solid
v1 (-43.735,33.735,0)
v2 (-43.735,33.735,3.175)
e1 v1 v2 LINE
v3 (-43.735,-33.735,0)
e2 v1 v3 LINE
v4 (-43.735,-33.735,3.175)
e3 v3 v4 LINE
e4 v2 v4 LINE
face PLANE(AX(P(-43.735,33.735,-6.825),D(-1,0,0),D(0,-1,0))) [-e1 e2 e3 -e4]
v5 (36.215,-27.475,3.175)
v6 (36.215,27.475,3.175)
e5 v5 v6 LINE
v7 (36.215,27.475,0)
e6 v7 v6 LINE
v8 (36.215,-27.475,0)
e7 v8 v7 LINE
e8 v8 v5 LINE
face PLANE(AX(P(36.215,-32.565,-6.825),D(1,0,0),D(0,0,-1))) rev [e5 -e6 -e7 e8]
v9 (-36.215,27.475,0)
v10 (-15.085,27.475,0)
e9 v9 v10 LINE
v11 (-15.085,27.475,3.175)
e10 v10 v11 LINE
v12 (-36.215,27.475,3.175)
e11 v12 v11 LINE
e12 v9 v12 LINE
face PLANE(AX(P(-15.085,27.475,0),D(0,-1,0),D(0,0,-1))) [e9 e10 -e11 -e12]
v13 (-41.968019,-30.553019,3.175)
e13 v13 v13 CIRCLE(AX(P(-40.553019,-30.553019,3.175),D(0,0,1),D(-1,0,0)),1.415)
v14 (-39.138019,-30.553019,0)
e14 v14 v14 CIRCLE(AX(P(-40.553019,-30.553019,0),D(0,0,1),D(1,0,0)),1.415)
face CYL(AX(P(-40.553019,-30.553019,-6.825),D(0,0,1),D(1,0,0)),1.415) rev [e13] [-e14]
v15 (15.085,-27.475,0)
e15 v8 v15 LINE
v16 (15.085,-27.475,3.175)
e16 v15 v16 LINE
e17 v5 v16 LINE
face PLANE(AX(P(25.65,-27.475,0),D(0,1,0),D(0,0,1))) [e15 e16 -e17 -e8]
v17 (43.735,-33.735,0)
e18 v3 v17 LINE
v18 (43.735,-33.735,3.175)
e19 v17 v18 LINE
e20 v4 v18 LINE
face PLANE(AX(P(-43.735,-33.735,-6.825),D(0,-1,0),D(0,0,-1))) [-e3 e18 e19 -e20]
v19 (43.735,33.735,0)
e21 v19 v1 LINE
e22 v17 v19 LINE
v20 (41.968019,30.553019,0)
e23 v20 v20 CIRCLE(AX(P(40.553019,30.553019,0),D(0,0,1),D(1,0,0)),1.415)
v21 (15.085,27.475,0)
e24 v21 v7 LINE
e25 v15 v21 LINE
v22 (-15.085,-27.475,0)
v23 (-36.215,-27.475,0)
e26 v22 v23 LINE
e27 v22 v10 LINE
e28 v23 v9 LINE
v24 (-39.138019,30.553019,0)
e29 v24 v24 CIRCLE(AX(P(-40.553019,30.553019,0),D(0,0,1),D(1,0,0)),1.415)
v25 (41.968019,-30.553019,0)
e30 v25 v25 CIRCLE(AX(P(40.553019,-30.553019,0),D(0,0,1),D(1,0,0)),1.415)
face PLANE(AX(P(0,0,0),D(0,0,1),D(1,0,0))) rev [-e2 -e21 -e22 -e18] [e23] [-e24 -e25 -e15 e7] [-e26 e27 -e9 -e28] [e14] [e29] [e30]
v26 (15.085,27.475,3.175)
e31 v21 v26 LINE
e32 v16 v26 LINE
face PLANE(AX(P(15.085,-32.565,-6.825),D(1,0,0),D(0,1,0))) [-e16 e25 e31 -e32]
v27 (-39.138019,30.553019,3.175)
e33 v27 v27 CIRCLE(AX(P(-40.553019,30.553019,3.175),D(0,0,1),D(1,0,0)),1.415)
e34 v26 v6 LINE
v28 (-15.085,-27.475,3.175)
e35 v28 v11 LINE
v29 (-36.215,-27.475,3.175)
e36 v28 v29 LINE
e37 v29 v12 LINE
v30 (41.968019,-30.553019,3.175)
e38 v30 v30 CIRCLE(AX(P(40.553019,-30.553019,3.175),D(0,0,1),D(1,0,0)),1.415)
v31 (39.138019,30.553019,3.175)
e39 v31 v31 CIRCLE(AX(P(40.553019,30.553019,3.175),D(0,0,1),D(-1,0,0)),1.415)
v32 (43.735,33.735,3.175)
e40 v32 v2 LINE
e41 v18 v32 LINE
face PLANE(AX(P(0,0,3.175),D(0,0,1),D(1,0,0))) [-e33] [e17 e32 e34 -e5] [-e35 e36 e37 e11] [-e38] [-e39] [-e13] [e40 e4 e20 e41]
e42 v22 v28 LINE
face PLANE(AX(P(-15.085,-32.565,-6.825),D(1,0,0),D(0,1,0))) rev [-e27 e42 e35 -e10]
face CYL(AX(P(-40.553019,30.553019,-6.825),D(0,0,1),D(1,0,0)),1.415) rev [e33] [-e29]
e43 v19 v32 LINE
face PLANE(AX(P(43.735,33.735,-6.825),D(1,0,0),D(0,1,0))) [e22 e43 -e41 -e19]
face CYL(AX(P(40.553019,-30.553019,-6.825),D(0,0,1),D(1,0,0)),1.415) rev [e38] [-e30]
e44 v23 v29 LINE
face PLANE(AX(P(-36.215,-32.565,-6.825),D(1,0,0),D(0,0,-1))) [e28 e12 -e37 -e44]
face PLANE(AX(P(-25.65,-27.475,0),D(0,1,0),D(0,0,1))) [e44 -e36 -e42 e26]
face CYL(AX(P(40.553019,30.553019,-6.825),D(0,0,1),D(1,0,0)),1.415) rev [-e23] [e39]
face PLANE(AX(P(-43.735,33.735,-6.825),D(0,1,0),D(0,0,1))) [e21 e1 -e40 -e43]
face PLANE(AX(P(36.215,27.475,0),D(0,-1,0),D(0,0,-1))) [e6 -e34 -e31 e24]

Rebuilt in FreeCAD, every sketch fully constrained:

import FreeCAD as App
import Part
import Sketcher

V = App.Vector
Q = App.Units.Quantity

doc = App.newDocument("Part")
body = doc.addObject("PartDesign::Body", "Body")

# Sketch on XY plane
sketch1 = body.newObject("Sketcher::SketchObject", "Sketch")
sketch1.AttachmentSupport = (doc.getObject("XY_Plane"), [""])
sketch1.MapMode = "FlatFace"
sketch1.addGeometry(Part.LineSegment(V(-50, 40, 0), V(-50, -40, 0)), False)
sketch1.addGeometry(Part.LineSegment(V(-50, -40, 0), V(50, -40, 0)), False)
sketch1.addGeometry(Part.LineSegment(V(50, -40, 0), V(50, 40, 0)), False)
sketch1.addGeometry(Part.LineSegment(V(50, 40, 0), V(-50, 40, 0)), False)
sketch1.addConstraint(Sketcher.Constraint("Coincident", 0, 2, 1, 1))
sketch1.addConstraint(Sketcher.Constraint("Coincident", 1, 2, 2, 1))
sketch1.addConstraint(Sketcher.Constraint("Coincident", 2, 2, 3, 1))
sketch1.addConstraint(Sketcher.Constraint("Coincident", 3, 2, 0, 1))
sketch1.addConstraint(Sketcher.Constraint("Vertical", 0))
sketch1.addConstraint(Sketcher.Constraint("Horizontal", 1))
sketch1.addConstraint(Sketcher.Constraint("Vertical", 2))
sketch1.addConstraint(Sketcher.Constraint("Horizontal", 3))
sketch1.addConstraint(Sketcher.Constraint("Symmetric", 0, 2, 2, 2, -1, 1))
sketch1.addConstraint(Sketcher.Constraint("DistanceX", 1, 1, 1, 2, Q("100 mm")))
sketch1.addConstraint(Sketcher.Constraint("DistanceY", 0, 2, 0, 1, Q("80 mm")))
pad1 = body.newObject("PartDesign::Pad", "Pad")
pad1.Profile = sketch1
pad1.Length = 3.175

# Sketch on XY plane
sketch2 = body.newObject("Sketcher::SketchObject", "Sketch001")
sketch2.AttachmentSupport = (doc.getObject("XY_Plane"), [""])
sketch2.MapMode = "FlatFace"
sketch2.AttachmentOffset = App.Placement(V(0, 0, 3.175), App.Rotation())
sketch2.addGeometry(Part.LineSegment(V(-50, 40, 0), V(-50, -40, 0)), False)
sketch2.addGeometry(Part.LineSegment(V(-50, -40, 0), V(50, -40, 0)), False)
sketch2.addGeometry(Part.LineSegment(V(50, -40, 0), V(50, 40, 0)), False)
sketch2.addGeometry(Part.LineSegment(V(50, 40, 0), V(-50, 40, 0)), False)
sketch2.addGeometry(Part.LineSegment(V(44, -34, 0), V(-44, -34, 0)), False)
sketch2.addGeometry(Part.LineSegment(V(-44, -34, 0), V(-44, 34, 0)), False)
sketch2.addGeometry(Part.LineSegment(V(-44, 34, 0), V(44, 34, 0)), False)
sketch2.addGeometry(Part.LineSegment(V(44, 34, 0), V(44, -34, 0)), False)
sketch2.addConstraint(Sketcher.Constraint("Coincident", 0, 2, 1, 1))
sketch2.addConstraint(Sketcher.Constraint("Coincident", 1, 2, 2, 1))
sketch2.addConstraint(Sketcher.Constraint("Coincident", 2, 2, 3, 1))
sketch2.addConstraint(Sketcher.Constraint("Coincident", 3, 2, 0, 1))
sketch2.addConstraint(Sketcher.Constraint("Coincident", 4, 2, 5, 1))
sketch2.addConstraint(Sketcher.Constraint("Coincident", 5, 2, 6, 1))
sketch2.addConstraint(Sketcher.Constraint("Coincident", 6, 2, 7, 1))
sketch2.addConstraint(Sketcher.Constraint("Coincident", 7, 2, 4, 1))
sketch2.addConstraint(Sketcher.Constraint("Vertical", 0))
sketch2.addConstraint(Sketcher.Constraint("Horizontal", 1))
sketch2.addConstraint(Sketcher.Constraint("Vertical", 2))
sketch2.addConstraint(Sketcher.Constraint("Horizontal", 3))
sketch2.addConstraint(Sketcher.Constraint("Horizontal", 4))
sketch2.addConstraint(Sketcher.Constraint("Vertical", 5))
sketch2.addConstraint(Sketcher.Constraint("Horizontal", 6))
sketch2.addConstraint(Sketcher.Constraint("Vertical", 7))
sketch2.addConstraint(Sketcher.Constraint("Symmetric", 0, 2, 2, 2, -1, 1))
sketch2.addConstraint(Sketcher.Constraint("Symmetric", 4, 2, 6, 2, -1, 1))
sketch2.addConstraint(Sketcher.Constraint("DistanceX", 1, 1, 1, 2, Q("100.51 mm")))
sketch2.addConstraint(Sketcher.Constraint("DistanceX", 4, 2, 4, 1, Q("87.47 mm")))
sketch2.addConstraint(Sketcher.Constraint("DistanceY", 0, 2, 0, 1, Q("80.51 mm")))
sketch2.addConstraint(Sketcher.Constraint("DistanceY", 5, 1, 5, 2, Q("67.47 mm")))
pocket1 = body.newObject("PartDesign::Pocket", "Pocket")
pocket1.Profile = sketch2
pocket1.Length = 10

# Sketch on XY plane
sketch3 = body.newObject("Sketcher::SketchObject", "Sketch002")
sketch3.AttachmentSupport = (doc.getObject("XY_Plane"), [""])
sketch3.MapMode = "FlatFace"
sketch3.AttachmentOffset = App.Placement(V(0, 0, 3.175), App.Rotation())
sketch3.addGeometry(Part.Circle(V(-40.6, 30.6, 0), V(0, 0, 1), 1.4), False)
sketch3.addGeometry(Part.Circle(V(-40.6, -30.6, 0), V(0, 0, 1), 1.4), False)
sketch3.addGeometry(Part.Circle(V(40.6, -30.6, 0), V(0, 0, 1), 1.4), False)
sketch3.addGeometry(Part.Circle(V(40.6, 30.6, 0), V(0, 0, 1), 1.4), False)
sketch3.addConstraint(Sketcher.Constraint("Equal", 0, 1))
sketch3.addConstraint(Sketcher.Constraint("Equal", 1, 2))
sketch3.addConstraint(Sketcher.Constraint("Equal", 2, 3))
sketch3.addConstraint(Sketcher.Constraint("Symmetric", 0, 3, 2, 3, -1, 1))
sketch3.addConstraint(Sketcher.Constraint("Symmetric", 1, 3, 3, 3, -1, 1))
sketch3.addConstraint(Sketcher.Constraint("Symmetric", 1, 3, 2, 3, -2))
sketch3.addConstraint(Sketcher.Constraint("Diameter", 0, Q("2.83 mm")))
sketch3.addConstraint(Sketcher.Constraint("DistanceX", 0, 3, -1, 1, Q("40.553019 mm")))
sketch3.addConstraint(Sketcher.Constraint("DistanceY", -1, 1, 0, 3, Q("30.553019 mm")))
pocket2 = body.newObject("PartDesign::Pocket", "Pocket001")
pocket2.Profile = sketch3
pocket2.Length = 10

# Sketch on XY plane
sketch4 = body.newObject("Sketcher::SketchObject", "Sketch003")
sketch4.AttachmentSupport = (doc.getObject("XY_Plane"), [""])
sketch4.MapMode = "FlatFace"
sketch4.AttachmentOffset = App.Placement(V(0, 0, 3.175), App.Rotation())
sketch4.addGeometry(Part.LineSegment(V(-36, 33, 0), V(-36, -33, 0)), False)
sketch4.addGeometry(Part.LineSegment(V(-36, -33, 0), V(-15, -33, 0)), False)
sketch4.addGeometry(Part.LineSegment(V(-15, -33, 0), V(-15, 33, 0)), False)
sketch4.addGeometry(Part.LineSegment(V(-15, 33, 0), V(-36, 33, 0)), False)
sketch4.addGeometry(Part.LineSegment(V(15, 33, 0), V(15, -33, 0)), False)
sketch4.addGeometry(Part.LineSegment(V(15, -33, 0), V(36, -33, 0)), False)
sketch4.addGeometry(Part.LineSegment(V(36, -33, 0), V(36, 33, 0)), False)
sketch4.addGeometry(Part.LineSegment(V(36, 33, 0), V(15, 33, 0)), False)
sketch4.addConstraint(Sketcher.Constraint("Coincident", 0, 2, 1, 1))
sketch4.addConstraint(Sketcher.Constraint("Coincident", 1, 2, 2, 1))
sketch4.addConstraint(Sketcher.Constraint("Coincident", 2, 2, 3, 1))
sketch4.addConstraint(Sketcher.Constraint("Coincident", 3, 2, 0, 1))
sketch4.addConstraint(Sketcher.Constraint("Coincident", 4, 2, 5, 1))
sketch4.addConstraint(Sketcher.Constraint("Coincident", 5, 2, 6, 1))
sketch4.addConstraint(Sketcher.Constraint("Coincident", 6, 2, 7, 1))
sketch4.addConstraint(Sketcher.Constraint("Coincident", 7, 2, 4, 1))
sketch4.addConstraint(Sketcher.Constraint("Vertical", 0))
sketch4.addConstraint(Sketcher.Constraint("Horizontal", 1))
sketch4.addConstraint(Sketcher.Constraint("Vertical", 2))
sketch4.addConstraint(Sketcher.Constraint("Horizontal", 3))
sketch4.addConstraint(Sketcher.Constraint("Vertical", 4))
sketch4.addConstraint(Sketcher.Constraint("Horizontal", 5))
sketch4.addConstraint(Sketcher.Constraint("Vertical", 6))
sketch4.addConstraint(Sketcher.Constraint("Horizontal", 7))
sketch4.addConstraint(Sketcher.Constraint("Symmetric", 2, 2, 4, 2, -1, 1))
sketch4.addConstraint(Sketcher.Constraint("Symmetric", 0, 2, 6, 2, -1, 1))
sketch4.addConstraint(Sketcher.Constraint("Horizontal", 1, 2, 4, 2))
sketch4.addConstraint(Sketcher.Constraint("DistanceX", 1, 1, 1, 2, Q("21.13 mm")))
sketch4.addConstraint(Sketcher.Constraint("DistanceY", 0, 2, 0, 1, Q("65.13 mm")))
sketch4.addConstraint(Sketcher.Constraint("DistanceX", 0, 2, 4, 2, Q("51.3 mm")))
pocket3 = body.newObject("PartDesign::Pocket", "Pocket002")
pocket3.Profile = sketch4
pocket3.Length = 10

# Sketch on XY plane
sketch5 = body.newObject("Sketcher::SketchObject", "Sketch004")
sketch5.AttachmentSupport = (doc.getObject("XY_Plane"), [""])
sketch5.MapMode = "FlatFace"
sketch5.AttachmentOffset = App.Placement(V(0, 0, 3.175), App.Rotation())
sketch5.addGeometry(Part.LineSegment(V(-15, -33, 0), V(-15, -27, 0)), False)
sketch5.addGeometry(Part.LineSegment(V(-15, -27, 0), V(-36, -27, 0)), False)
sketch5.addGeometry(Part.LineSegment(V(-36, -27, 0), V(-36, -33, 0)), False)
sketch5.addGeometry(Part.LineSegment(V(-36, -33, 0), V(-15, -33, 0)), False)
sketch5.addGeometry(Part.LineSegment(V(36, -33, 0), V(36, -27, 0)), False)
sketch5.addGeometry(Part.LineSegment(V(36, -27, 0), V(15, -27, 0)), False)
sketch5.addGeometry(Part.LineSegment(V(15, -27, 0), V(15, -33, 0)), False)
sketch5.addGeometry(Part.LineSegment(V(15, -33, 0), V(36, -33, 0)), False)
sketch5.addGeometry(Part.LineSegment(V(15, 33, 0), V(15, 27, 0)), False)
sketch5.addGeometry(Part.LineSegment(V(15, 27, 0), V(36, 27, 0)), False)
sketch5.addGeometry(Part.LineSegment(V(36, 27, 0), V(36, 33, 0)), False)
sketch5.addGeometry(Part.LineSegment(V(36, 33, 0), V(15, 33, 0)), False)
sketch5.addGeometry(Part.LineSegment(V(-36, 33, 0), V(-36, 27, 0)), False)
sketch5.addGeometry(Part.LineSegment(V(-36, 27, 0), V(-15, 27, 0)), False)
sketch5.addGeometry(Part.LineSegment(V(-15, 27, 0), V(-15, 33, 0)), False)
sketch5.addGeometry(Part.LineSegment(V(-15, 33, 0), V(-36, 33, 0)), False)
sketch5.addConstraint(Sketcher.Constraint("Coincident", 0, 2, 1, 1))
sketch5.addConstraint(Sketcher.Constraint("Coincident", 1, 2, 2, 1))
sketch5.addConstraint(Sketcher.Constraint("Coincident", 2, 2, 3, 1))
sketch5.addConstraint(Sketcher.Constraint("Coincident", 3, 2, 0, 1))
sketch5.addConstraint(Sketcher.Constraint("Coincident", 4, 2, 5, 1))
sketch5.addConstraint(Sketcher.Constraint("Coincident", 5, 2, 6, 1))
sketch5.addConstraint(Sketcher.Constraint("Coincident", 6, 2, 7, 1))
sketch5.addConstraint(Sketcher.Constraint("Coincident", 7, 2, 4, 1))
sketch5.addConstraint(Sketcher.Constraint("Coincident", 8, 2, 9, 1))
sketch5.addConstraint(Sketcher.Constraint("Coincident", 9, 2, 10, 1))
sketch5.addConstraint(Sketcher.Constraint("Coincident", 10, 2, 11, 1))
sketch5.addConstraint(Sketcher.Constraint("Coincident", 11, 2, 8, 1))
sketch5.addConstraint(Sketcher.Constraint("Coincident", 12, 2, 13, 1))
sketch5.addConstraint(Sketcher.Constraint("Coincident", 13, 2, 14, 1))
sketch5.addConstraint(Sketcher.Constraint("Coincident", 14, 2, 15, 1))
sketch5.addConstraint(Sketcher.Constraint("Coincident", 15, 2, 12, 1))
sketch5.addConstraint(Sketcher.Constraint("Vertical", 0))
sketch5.addConstraint(Sketcher.Constraint("Horizontal", 1))
sketch5.addConstraint(Sketcher.Constraint("Vertical", 2))
sketch5.addConstraint(Sketcher.Constraint("Horizontal", 3))
sketch5.addConstraint(Sketcher.Constraint("Vertical", 4))
sketch5.addConstraint(Sketcher.Constraint("Horizontal", 5))
sketch5.addConstraint(Sketcher.Constraint("Vertical", 6))
sketch5.addConstraint(Sketcher.Constraint("Horizontal", 7))
sketch5.addConstraint(Sketcher.Constraint("Vertical", 8))
sketch5.addConstraint(Sketcher.Constraint("Horizontal", 9))
sketch5.addConstraint(Sketcher.Constraint("Vertical", 10))
sketch5.addConstraint(Sketcher.Constraint("Horizontal", 11))
sketch5.addConstraint(Sketcher.Constraint("Vertical", 12))
sketch5.addConstraint(Sketcher.Constraint("Horizontal", 13))
sketch5.addConstraint(Sketcher.Constraint("Vertical", 14))
sketch5.addConstraint(Sketcher.Constraint("Horizontal", 15))
sketch5.addConstraint(Sketcher.Constraint("Symmetric", 0, 2, 8, 2, -1, 1))
sketch5.addConstraint(Sketcher.Constraint("Symmetric", 2, 2, 10, 2, -1, 1))
sketch5.addConstraint(Sketcher.Constraint("Symmetric", 4, 2, 12, 2, -1, 1))
sketch5.addConstraint(Sketcher.Constraint("Symmetric", 6, 2, 14, 2, -1, 1))
sketch5.addConstraint(Sketcher.Constraint("Symmetric", 1, 2, 4, 2, -2))
sketch5.addConstraint(Sketcher.Constraint("Symmetric", 3, 2, 6, 2, -2))
sketch5.addConstraint(Sketcher.Constraint("DistanceX", 1, 2, 1, 1, Q("21.13 mm")))
sketch5.addConstraint(Sketcher.Constraint("DistanceY", 0, 1, 0, 2, Q("5.09 mm")))
sketch5.addConstraint(Sketcher.Constraint("DistanceX", 0, 2, 4, 2, Q("51.3 mm")))
sketch5.addConstraint(Sketcher.Constraint("DistanceY", 5, 2, 8, 2, Q("54.95 mm")))
pad2 = body.newObject("PartDesign::Pad", "Pad001")
pad2.Profile = sketch5
pad2.Length = 3.175
pad2.Reversed = True

doc.recompute()
